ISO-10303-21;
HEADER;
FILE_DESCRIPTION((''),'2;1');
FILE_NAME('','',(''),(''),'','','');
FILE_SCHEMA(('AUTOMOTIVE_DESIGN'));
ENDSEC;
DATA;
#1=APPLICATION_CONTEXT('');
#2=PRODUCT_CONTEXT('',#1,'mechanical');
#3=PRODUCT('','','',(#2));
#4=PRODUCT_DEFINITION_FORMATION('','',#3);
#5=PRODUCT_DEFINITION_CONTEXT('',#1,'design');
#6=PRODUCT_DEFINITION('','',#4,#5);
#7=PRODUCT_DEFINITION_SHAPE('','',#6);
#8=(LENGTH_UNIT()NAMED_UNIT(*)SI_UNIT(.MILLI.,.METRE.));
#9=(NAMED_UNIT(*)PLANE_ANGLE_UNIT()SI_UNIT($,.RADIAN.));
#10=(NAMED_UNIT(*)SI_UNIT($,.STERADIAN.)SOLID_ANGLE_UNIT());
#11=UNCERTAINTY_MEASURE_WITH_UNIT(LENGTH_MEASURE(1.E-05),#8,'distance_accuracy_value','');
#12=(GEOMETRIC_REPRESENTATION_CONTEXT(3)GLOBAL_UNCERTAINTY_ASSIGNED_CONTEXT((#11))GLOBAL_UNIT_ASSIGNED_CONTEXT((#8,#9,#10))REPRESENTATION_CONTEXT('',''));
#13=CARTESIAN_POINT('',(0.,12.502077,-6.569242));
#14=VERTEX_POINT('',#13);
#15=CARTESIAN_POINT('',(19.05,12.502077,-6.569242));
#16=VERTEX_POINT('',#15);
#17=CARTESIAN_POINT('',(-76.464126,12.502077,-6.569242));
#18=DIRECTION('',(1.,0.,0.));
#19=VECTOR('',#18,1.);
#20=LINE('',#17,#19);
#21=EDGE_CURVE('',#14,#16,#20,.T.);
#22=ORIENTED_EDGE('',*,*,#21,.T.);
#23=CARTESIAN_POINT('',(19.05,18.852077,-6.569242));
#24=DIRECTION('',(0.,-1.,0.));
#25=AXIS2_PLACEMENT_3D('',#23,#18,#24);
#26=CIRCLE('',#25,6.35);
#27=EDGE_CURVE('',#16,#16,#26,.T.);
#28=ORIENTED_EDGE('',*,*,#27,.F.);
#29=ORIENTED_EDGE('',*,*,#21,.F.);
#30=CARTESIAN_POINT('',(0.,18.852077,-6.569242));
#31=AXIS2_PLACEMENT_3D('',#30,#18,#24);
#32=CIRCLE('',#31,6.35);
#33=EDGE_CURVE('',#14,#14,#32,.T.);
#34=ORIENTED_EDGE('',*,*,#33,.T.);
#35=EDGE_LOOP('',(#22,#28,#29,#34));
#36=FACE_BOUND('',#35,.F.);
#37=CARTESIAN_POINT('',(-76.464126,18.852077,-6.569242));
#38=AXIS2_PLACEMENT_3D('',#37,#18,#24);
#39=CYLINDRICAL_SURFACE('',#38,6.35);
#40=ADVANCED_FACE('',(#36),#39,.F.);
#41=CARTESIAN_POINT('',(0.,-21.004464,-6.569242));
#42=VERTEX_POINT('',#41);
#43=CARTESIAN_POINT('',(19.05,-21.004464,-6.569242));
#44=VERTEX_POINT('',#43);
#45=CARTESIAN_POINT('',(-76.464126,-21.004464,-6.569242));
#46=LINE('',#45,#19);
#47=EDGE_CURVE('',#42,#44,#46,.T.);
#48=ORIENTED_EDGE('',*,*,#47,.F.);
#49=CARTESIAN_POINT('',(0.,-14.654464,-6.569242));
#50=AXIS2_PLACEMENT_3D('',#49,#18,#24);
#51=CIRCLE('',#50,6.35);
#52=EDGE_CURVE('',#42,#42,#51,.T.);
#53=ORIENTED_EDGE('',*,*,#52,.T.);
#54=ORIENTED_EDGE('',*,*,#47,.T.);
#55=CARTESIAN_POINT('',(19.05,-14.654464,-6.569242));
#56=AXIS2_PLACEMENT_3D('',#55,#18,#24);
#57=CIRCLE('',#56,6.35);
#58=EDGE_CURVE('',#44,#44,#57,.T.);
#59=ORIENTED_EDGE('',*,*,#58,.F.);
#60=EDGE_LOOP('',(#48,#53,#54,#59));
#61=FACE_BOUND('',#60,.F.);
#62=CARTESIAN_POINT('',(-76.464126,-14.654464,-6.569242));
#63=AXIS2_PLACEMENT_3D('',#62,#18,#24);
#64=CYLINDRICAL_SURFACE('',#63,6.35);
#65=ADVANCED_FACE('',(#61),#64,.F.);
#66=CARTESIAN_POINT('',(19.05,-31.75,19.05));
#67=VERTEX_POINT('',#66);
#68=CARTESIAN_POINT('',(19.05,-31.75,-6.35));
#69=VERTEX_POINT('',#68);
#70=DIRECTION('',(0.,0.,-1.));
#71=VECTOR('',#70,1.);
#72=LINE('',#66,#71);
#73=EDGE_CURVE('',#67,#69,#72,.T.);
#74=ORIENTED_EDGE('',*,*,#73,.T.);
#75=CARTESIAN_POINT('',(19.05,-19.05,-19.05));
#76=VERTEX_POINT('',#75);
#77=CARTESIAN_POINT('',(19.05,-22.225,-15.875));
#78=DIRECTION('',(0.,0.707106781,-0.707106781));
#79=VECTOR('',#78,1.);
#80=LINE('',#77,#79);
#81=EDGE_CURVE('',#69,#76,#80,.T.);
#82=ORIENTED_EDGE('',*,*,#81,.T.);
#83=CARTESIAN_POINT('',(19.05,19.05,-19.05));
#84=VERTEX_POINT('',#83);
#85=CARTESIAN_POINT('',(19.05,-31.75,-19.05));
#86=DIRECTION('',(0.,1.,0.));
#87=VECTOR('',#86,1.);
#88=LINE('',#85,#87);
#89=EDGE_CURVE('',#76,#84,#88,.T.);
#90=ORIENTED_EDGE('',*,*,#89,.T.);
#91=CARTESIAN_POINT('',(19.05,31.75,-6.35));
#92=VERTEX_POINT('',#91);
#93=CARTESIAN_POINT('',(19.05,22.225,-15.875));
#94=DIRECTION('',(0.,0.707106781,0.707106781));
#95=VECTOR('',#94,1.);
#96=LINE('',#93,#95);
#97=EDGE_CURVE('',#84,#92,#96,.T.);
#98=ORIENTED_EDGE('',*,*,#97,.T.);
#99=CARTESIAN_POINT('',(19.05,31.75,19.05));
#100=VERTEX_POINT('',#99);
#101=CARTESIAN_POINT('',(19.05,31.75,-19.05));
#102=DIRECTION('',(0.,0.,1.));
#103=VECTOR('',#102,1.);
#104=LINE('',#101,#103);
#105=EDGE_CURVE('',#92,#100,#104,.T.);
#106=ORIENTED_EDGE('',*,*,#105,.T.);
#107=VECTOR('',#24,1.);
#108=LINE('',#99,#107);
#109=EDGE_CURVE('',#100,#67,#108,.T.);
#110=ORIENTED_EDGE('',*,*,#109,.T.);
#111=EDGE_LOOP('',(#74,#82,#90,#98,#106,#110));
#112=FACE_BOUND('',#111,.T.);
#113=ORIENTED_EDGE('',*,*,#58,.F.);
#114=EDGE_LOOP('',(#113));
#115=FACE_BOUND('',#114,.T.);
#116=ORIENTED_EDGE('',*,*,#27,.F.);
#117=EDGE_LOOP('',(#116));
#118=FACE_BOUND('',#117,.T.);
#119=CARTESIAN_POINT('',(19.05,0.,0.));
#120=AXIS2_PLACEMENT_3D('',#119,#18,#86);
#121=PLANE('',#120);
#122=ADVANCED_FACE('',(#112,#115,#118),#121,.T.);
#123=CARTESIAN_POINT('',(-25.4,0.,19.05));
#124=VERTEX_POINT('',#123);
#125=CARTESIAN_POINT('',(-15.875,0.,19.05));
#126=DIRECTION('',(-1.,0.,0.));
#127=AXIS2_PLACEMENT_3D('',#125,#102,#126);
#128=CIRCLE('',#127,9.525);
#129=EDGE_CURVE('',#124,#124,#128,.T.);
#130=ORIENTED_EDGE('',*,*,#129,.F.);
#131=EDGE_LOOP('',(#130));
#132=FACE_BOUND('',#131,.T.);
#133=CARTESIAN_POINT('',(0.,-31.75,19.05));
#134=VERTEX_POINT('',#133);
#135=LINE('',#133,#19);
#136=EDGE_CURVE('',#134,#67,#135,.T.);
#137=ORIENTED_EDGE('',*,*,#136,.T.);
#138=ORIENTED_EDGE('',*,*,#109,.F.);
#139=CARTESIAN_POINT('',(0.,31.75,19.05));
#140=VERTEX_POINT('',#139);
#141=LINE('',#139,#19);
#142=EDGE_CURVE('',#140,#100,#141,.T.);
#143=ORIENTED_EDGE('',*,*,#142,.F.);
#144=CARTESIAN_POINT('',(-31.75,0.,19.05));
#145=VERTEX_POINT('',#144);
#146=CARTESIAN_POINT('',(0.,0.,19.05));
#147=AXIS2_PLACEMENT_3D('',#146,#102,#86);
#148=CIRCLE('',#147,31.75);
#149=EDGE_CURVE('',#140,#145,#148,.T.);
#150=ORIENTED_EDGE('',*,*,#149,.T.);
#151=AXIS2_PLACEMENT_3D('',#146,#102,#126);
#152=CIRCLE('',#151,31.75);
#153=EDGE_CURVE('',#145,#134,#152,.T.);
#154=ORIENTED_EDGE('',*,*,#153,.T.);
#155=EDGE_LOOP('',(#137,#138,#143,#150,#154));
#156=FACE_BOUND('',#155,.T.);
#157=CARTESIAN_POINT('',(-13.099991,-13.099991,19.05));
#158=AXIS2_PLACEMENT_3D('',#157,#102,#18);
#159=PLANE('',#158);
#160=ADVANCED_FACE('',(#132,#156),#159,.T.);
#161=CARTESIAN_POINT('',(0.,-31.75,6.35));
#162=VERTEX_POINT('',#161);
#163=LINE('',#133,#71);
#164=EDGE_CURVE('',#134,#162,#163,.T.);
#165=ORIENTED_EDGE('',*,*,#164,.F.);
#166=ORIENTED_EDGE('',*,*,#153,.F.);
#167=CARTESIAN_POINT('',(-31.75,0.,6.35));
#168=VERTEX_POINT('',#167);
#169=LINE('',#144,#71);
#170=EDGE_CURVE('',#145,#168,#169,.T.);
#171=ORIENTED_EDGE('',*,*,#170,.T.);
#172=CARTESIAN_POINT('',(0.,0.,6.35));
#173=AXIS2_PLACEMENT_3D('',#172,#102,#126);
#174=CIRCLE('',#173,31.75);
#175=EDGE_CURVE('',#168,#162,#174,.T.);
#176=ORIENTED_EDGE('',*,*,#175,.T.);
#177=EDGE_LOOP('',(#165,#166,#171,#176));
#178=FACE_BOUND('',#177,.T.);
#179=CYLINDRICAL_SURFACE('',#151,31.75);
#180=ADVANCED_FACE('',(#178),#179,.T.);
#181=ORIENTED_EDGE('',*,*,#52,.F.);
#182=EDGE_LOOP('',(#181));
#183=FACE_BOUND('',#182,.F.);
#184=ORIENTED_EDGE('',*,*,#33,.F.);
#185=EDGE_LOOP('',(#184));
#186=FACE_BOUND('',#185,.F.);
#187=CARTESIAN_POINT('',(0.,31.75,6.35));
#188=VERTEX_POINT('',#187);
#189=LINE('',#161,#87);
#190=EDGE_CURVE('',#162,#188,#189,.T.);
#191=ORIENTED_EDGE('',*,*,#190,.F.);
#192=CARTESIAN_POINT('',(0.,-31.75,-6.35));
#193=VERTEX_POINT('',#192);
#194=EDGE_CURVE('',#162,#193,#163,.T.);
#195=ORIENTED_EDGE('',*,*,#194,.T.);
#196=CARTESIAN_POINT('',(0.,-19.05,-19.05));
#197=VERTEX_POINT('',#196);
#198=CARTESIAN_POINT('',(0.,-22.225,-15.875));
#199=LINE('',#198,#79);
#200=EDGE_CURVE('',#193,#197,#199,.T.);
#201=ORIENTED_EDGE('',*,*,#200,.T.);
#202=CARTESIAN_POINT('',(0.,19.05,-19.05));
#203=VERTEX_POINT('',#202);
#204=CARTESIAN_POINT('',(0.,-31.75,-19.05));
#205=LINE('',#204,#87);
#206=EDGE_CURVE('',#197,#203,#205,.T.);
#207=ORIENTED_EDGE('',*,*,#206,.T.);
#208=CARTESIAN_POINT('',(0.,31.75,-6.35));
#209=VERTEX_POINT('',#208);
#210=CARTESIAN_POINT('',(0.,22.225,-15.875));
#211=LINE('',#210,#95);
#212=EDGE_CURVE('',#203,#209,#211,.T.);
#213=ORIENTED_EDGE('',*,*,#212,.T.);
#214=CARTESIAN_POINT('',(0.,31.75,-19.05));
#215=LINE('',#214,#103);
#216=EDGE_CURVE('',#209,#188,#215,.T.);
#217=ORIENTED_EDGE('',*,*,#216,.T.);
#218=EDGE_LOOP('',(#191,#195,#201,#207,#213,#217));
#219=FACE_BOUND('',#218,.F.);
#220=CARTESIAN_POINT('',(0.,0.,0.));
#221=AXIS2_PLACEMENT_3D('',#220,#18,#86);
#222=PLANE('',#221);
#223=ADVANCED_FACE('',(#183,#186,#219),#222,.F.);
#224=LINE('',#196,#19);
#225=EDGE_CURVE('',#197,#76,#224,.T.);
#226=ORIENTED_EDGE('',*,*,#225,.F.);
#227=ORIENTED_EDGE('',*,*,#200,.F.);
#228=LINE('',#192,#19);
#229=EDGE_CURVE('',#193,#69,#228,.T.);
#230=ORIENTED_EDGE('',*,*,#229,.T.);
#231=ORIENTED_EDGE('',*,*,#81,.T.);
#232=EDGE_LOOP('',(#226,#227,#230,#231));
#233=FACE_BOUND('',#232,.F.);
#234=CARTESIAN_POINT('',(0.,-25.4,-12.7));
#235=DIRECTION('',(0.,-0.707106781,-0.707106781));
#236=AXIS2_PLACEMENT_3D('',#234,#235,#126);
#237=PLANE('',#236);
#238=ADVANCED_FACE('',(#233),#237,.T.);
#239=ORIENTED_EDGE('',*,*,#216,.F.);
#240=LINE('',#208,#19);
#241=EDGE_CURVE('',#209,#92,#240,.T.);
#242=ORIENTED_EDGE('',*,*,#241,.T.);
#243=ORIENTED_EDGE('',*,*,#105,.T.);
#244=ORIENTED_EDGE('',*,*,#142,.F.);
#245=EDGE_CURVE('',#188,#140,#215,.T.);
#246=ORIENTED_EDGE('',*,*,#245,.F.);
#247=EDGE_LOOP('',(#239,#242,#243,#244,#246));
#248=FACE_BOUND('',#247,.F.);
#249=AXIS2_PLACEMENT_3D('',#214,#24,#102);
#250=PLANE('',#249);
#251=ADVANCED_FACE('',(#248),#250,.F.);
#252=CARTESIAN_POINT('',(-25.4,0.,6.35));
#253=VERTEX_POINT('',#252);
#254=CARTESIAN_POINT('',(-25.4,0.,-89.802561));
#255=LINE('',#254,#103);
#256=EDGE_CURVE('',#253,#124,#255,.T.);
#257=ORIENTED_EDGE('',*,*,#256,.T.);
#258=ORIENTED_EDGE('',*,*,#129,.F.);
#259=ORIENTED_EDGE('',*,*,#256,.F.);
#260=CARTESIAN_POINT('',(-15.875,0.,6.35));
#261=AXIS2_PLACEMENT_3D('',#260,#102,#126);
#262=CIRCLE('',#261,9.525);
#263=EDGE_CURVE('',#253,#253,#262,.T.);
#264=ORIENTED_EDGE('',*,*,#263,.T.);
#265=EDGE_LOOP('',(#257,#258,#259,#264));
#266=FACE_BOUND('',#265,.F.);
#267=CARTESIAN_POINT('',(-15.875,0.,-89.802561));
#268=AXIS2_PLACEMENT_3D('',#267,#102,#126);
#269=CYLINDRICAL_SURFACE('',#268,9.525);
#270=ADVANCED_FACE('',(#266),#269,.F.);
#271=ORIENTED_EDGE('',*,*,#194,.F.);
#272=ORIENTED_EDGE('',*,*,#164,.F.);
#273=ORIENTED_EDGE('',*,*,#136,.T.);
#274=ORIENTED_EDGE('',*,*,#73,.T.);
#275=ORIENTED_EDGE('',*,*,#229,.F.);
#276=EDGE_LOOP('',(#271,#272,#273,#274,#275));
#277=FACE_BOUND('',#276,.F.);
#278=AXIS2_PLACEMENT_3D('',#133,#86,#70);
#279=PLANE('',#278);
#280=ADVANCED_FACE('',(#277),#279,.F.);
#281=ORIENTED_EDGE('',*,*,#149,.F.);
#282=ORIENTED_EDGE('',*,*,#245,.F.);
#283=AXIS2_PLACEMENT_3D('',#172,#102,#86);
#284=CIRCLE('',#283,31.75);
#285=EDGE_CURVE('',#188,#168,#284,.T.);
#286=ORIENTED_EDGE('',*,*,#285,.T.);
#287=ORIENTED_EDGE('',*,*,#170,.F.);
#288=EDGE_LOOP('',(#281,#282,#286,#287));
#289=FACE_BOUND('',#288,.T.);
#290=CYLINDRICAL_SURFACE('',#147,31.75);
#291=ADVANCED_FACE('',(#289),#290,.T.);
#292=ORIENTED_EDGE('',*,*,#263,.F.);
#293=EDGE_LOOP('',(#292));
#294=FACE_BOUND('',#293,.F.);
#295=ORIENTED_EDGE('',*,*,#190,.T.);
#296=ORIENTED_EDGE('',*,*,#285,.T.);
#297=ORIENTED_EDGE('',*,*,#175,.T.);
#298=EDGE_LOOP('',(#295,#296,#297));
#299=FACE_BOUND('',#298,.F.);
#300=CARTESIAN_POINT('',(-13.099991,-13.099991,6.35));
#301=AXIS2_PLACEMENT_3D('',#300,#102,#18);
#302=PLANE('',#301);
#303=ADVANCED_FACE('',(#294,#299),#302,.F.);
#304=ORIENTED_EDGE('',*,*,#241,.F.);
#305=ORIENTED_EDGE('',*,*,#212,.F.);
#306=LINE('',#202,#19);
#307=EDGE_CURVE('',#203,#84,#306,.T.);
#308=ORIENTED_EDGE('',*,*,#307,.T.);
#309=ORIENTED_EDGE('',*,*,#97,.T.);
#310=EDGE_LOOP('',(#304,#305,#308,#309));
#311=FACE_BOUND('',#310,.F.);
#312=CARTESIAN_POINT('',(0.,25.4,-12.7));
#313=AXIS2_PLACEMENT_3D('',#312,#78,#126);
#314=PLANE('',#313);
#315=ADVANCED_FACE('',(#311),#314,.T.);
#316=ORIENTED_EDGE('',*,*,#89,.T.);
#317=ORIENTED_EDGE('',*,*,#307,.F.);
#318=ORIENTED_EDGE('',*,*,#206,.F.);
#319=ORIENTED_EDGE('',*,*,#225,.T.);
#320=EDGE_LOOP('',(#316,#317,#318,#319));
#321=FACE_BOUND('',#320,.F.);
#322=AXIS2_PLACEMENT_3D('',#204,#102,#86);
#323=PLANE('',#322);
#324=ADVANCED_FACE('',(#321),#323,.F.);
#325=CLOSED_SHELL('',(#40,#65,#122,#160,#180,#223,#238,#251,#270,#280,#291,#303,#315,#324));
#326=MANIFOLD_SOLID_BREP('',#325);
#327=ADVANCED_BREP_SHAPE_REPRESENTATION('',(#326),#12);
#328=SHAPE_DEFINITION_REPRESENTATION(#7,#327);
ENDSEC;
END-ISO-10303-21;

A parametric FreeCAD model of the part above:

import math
import FreeCAD as App
import Part
import Sketcher

V = App.Vector
Q = App.Units.Quantity


def edges_at(feature, points):
    """Names of the edges that pass closest to the given points."""
    edges = feature.Shape.Edges
    near = lambda p: min(range(len(edges)), key=lambda i: edges[i].distToShape(Part.Vertex(*p))[0])
    return sorted({f"Edge{near(p) + 1}" for p in points})


def add_polygon(sketch, points):
    """Adds a closed chain of lines whose ends are joined by coincident constraints."""
    first, n = sketch.GeometryCount, len(points)
    for a, b in zip(points, points[1:] + points[:1]):
        sketch.addGeometry(Part.LineSegment(App.Vector(*a, 0), App.Vector(*b, 0)), False)
    for i in range(n):
        sketch.addConstraint(Sketcher.Constraint("Coincident", first + i, 2, first + (i + 1) % n, 1))

doc = App.newDocument("Part")
body = doc.addObject("PartDesign::Body", "Body")

sketch1 = body.newObject("Sketcher::SketchObject", "Sketch")
sketch1.AttachmentSupport = (doc.getObject("YZ_Plane"), [""])
sketch1.MapMode = "FlatFace"
add_polygon(sketch1, [(-32, 19), (-32, -19), (32, -19), (32, 19)])
sketch1.addConstraint(Sketcher.Constraint("Vertical", 0))
sketch1.addConstraint(Sketcher.Constraint("Horizontal", 1))
sketch1.addConstraint(Sketcher.Constraint("Vertical", 2))
sketch1.addConstraint(Sketcher.Constraint("Horizontal", 3))
sketch1.addConstraint(Sketcher.Constraint("Symmetric", 0, 2, 2, 2, -1, 1))
sketch1.addConstraint(Sketcher.Constraint("DistanceX", 1, 1, 1, 2, Q("2.5 in")))
sketch1.addConstraint(Sketcher.Constraint("DistanceY", 0, 2, 0, 1, Q("1.5 in")))
pad1 = body.newObject("PartDesign::Pad", "Pad")
pad1.Profile = sketch1
pad1.Length = Q("0.75 in")
doc.recompute()

chamfer = body.newObject("PartDesign::Chamfer", "Chamfer")
chamfer.Base = (pad1, edges_at(pad1, [(9.525, -31.75, -19.05)]))
chamfer.Size = Q("0.5 in")
doc.recompute()

chamfer2 = body.newObject("PartDesign::Chamfer", "Chamfer001")
chamfer2.Base = (chamfer, edges_at(chamfer, [(9.525, 31.75, -19.05)]))
chamfer2.Size = Q("0.5 in")

sketch2 = body.newObject("Sketcher::SketchObject", "Sketch001")
sketch2.AttachmentSupport = (doc.getObject("YZ_Plane"), [""])
sketch2.MapMode = "FlatFace"
sketch2.addGeometry(Part.Circle(V(-15, -7, 0), V(0, 0, 1), 6), False)
sketch2.addGeometry(Part.Circle(V(19, -7, 0), V(0, 0, 1), 6), False)
sketch2.addConstraint(Sketcher.Constraint("Equal", 0, 1))
sketch2.addConstraint(Sketcher.Constraint("Horizontal", 0, 3, 1, 3))
sketch2.addConstraint(Sketcher.Constraint("Diameter", 0, Q("0.5 in")))
sketch2.addConstraint(Sketcher.Constraint("DistanceX", 0, 3, 1, 3, Q("33.506542 mm")))
sketch2.addConstraint(Sketcher.Constraint("DistanceX", 0, 3, -1, 1, Q("14.654464 mm")))
sketch2.addConstraint(Sketcher.Constraint("DistanceY", 0, 3, -1, 1, Q("6.569242 mm")))
doc.recompute()
hole = body.newObject("PartDesign::Hole", "Hole")
hole.Profile = sketch2
hole.ThreadType = "None"
hole.Diameter = Q("0.5 in")
hole.DepthType = "ThroughAll"
hole.Reversed = True

sketch3 = body.newObject("Sketcher::SketchObject", "Sketch002")
sketch3.AttachmentSupport = (doc.getObject("XY_Plane"), [""])
sketch3.MapMode = "FlatFace"
sketch3.AttachmentOffset = App.Placement(V(0, 0, 0.75 * 25.4), App.Rotation())
sketch3.addGeometry(Part.LineSegment(V(0, -32, 0), V(0, 32, 0)), False)
sketch3.addGeometry(Part.ArcOfCircle(Part.Circle(V(0, 0, 0), V(0, 0, 1), 32), math.radians(90), math.radians(180)), False)
sketch3.addGeometry(Part.ArcOfCircle(Part.Circle(V(0, 0, 0), V(0, 0, 1), 32), math.radians(180), math.radians(270)), False)
sketch3.addConstraint(Sketcher.Constraint("Coincident", 0, 2, 1, 1))
sketch3.addConstraint(Sketcher.Constraint("Tangent", 1, 2, 2, 1))
sketch3.addConstraint(Sketcher.Constraint("Coincident", 2, 2, 0, 1))
sketch3.addConstraint(Sketcher.Constraint("Vertical", 0))
sketch3.addConstraint(Sketcher.Constraint("Coincident", 1, 3, -1, 1))
sketch3.addConstraint(Sketcher.Constraint("Equal", 1, 2))
sketch3.addConstraint(Sketcher.Constraint("PointOnObject", 0, 2, -2))
sketch3.addConstraint(Sketcher.Constraint("PointOnObject", 1, 2, -1))
sketch3.addConstraint(Sketcher.Constraint("Radius", 1, Q("1.25 in")))
pad2 = body.newObject("PartDesign::Pad", "Pad001")
pad2.Profile = sketch3
pad2.Length = Q("0.5 in")
pad2.Reversed = True

sketch4 = body.newObject("Sketcher::SketchObject", "Sketch003")
sketch4.AttachmentSupport = (doc.getObject("XY_Plane"), [""])
sketch4.MapMode = "FlatFace"
sketch4.addGeometry(Part.Circle(V(-16, 0, 0), V(0, 0, 1), 10), False)
sketch4.addConstraint(Sketcher.Constraint("PointOnObject", 0, 3, -1))
sketch4.addConstraint(Sketcher.Constraint("Diameter", 0, Q("0.75 in")))
sketch4.addConstraint(Sketcher.Constraint("DistanceX", 0, 3, -1, 1, Q("0.625 in")))
doc.recompute()
hole2 = body.newObject("PartDesign::Hole", "Hole001")
hole2.Profile = sketch4
hole2.ThreadType = "None"
hole2.Diameter = Q("0.75 in")
hole2.DepthType = "ThroughAll"
hole2.Reversed = True

doc.recompute()
